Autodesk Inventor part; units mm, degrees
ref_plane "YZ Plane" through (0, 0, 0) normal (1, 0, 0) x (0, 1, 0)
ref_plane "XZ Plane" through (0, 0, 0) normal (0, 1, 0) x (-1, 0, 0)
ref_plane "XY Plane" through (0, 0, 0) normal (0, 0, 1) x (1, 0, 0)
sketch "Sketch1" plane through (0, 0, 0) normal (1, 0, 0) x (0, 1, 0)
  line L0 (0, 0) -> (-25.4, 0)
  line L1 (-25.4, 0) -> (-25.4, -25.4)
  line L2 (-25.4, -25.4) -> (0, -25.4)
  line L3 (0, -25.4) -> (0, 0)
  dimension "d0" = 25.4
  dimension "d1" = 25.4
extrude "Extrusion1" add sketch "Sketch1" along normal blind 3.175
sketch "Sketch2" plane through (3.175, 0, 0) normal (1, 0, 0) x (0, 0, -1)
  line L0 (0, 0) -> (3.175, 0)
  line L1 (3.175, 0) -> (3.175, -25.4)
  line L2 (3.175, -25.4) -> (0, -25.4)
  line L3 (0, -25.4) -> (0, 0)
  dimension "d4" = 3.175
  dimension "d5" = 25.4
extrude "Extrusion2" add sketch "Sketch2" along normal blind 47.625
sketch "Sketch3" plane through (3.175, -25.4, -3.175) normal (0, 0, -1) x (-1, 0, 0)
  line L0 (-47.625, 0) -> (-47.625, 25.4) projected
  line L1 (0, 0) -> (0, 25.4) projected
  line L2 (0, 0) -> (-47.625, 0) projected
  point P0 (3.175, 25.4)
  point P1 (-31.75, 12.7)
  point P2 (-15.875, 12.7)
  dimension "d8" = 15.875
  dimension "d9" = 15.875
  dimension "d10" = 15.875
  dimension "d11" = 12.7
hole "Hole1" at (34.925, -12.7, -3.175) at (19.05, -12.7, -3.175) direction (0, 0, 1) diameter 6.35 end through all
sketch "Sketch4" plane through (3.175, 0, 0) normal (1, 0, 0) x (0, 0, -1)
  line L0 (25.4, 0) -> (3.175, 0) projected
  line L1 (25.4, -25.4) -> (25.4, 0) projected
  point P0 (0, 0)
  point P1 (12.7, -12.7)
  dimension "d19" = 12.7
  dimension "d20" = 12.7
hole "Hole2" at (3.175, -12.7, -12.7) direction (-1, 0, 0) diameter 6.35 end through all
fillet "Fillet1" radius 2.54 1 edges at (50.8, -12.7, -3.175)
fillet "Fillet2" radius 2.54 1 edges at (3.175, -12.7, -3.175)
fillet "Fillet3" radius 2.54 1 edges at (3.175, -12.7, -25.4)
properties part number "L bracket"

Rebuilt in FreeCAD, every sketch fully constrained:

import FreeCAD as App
import Part
import Sketcher
Q = App.Units.Quantity


def edges_at(feature, points):
    """Names of the edges that pass closest to the given points."""
    edges = feature.Shape.Edges
    near = lambda p: min(range(len(edges)), key=lambda i: edges[i].distToShape(Part.Vertex(*p))[0])
    return sorted({f"Edge{near(p) + 1}" for p in points})

doc = App.newDocument("Part")
body = doc.addObject("PartDesign::Body", "Body")

sketch1 = body.newObject("Sketcher::SketchObject", "Sketch")
sketch1.AttachmentSupport = (doc.getObject("YZ_Plane"), [""])
sketch1.MapMode = "FlatFace"
sketch1.addGeometry([
    Part.LineSegment(App.Vector(0, -25, 0), App.Vector(0, 0, 0)),
    Part.LineSegment(App.Vector(0, 0, 0), App.Vector(-25, 0, 0)),
    Part.LineSegment(App.Vector(-25, 0, 0), App.Vector(-25, -25, 0)),
    Part.LineSegment(App.Vector(-25, -25, 0), App.Vector(0, -25, 0)),
], False)
sketch1.addConstraint([
    Sketcher.Constraint("Coincident", 0, 2, 1, 1),
    Sketcher.Constraint("Coincident", 1, 2, 2, 1),
    Sketcher.Constraint("Coincident", 2, 2, 3, 1),
    Sketcher.Constraint("Coincident", 3, 2, 0, 1),
    Sketcher.Constraint("Vertical", 0),
    Sketcher.Constraint("Horizontal", 1),
    Sketcher.Constraint("Vertical", 2),
    Sketcher.Constraint("Horizontal", 3),
    Sketcher.Constraint("Coincident", 0, 2, -1, 1),
    Sketcher.Constraint("Equal", 3, 0),
    Sketcher.Constraint("DistanceX", 1, 2, 1, 1, Q("1 in")),
])
pad1 = body.newObject("PartDesign::Pad", "Pad")
pad1.Profile = sketch1
pad1.Length = Q("0.125 in")

sketch2 = body.newObject("Sketcher::SketchObject", "Sketch001")
sketch2.AttachmentSupport = (doc.getObject("YZ_Plane"), [""])
sketch2.MapMode = "FlatFace"
sketch2.AttachmentOffset = App.Placement(App.Vector(0, 0, 0.125 * 25.4), App.Rotation())
sketch2.addGeometry([
    Part.LineSegment(App.Vector(0, -3.2, 0), App.Vector(0, 0, 0)),
    Part.LineSegment(App.Vector(0, 0, 0), App.Vector(-25.4, 0, 0)),
    Part.LineSegment(App.Vector(-25.4, 0, 0), App.Vector(-25.4, -3.2, 0)),
    Part.LineSegment(App.Vector(-25.4, -3.2, 0), App.Vector(0, -3.2, 0)),
], False)
sketch2.addConstraint([
    Sketcher.Constraint("Coincident", 0, 2, 1, 1),
    Sketcher.Constraint("Coincident", 1, 2, 2, 1),
    Sketcher.Constraint("Coincident", 2, 2, 3, 1),
    Sketcher.Constraint("Coincident", 3, 2, 0, 1),
    Sketcher.Constraint("Vertical", 0),
    Sketcher.Constraint("Horizontal", 1),
    Sketcher.Constraint("Vertical", 2),
    Sketcher.Constraint("Horizontal", 3),
    Sketcher.Constraint("Coincident", 0, 2, -1, 1),
    Sketcher.Constraint("DistanceX", 1, 2, 1, 1, Q("1 in")),
    Sketcher.Constraint("DistanceY", 0, 1, 0, 2, Q("0.125 in")),
])
pad2 = body.newObject("PartDesign::Pad", "Pad001")
pad2.Profile = sketch2
pad2.Length = Q("1.875 in")

sketch3 = body.newObject("Sketcher::SketchObject", "Sketch002")
sketch3.AttachmentSupport = (doc.getObject("XY_Plane"), [""])
sketch3.MapMode = "FlatFace"
sketch3.AttachmentOffset = App.Placement(App.Vector(0, 0, -0.125 * 25.4), App.Rotation())
sketch3.addGeometry([
    Part.Circle(App.Vector(34.9, -12.7, 0), App.Vector(0, 0, 1), 3.2),
    Part.Circle(App.Vector(19.1, -12.7, 0), App.Vector(0, 0, 1), 3.2),
], False)
sketch3.addConstraint([
    Sketcher.Constraint("Equal", 0, 1),
    Sketcher.Constraint("Horizontal", 0, 3, 1, 3),
    Sketcher.Constraint("Diameter", 0, Q("0.25 in")),
    Sketcher.Constraint("DistanceY", 0, 3, -1, 1, Q("0.5 in")),
    Sketcher.Constraint("DistanceX", -1, 1, 1, 3, Q("0.75 in")),
    Sketcher.Constraint("DistanceX", -1, 1, 0, 3, Q("1.375 in")),
])
doc.recompute()
hole = body.newObject("PartDesign::Hole", "Hole")
hole.Profile = sketch3
hole.ThreadType = "None"
hole.Diameter = Q("0.25 in")
hole.DepthType = "ThroughAll"
hole.Reversed = True

sketch4 = body.newObject("Sketcher::SketchObject", "Sketch003")
sketch4.AttachmentSupport = (doc.getObject("YZ_Plane"), [""])
sketch4.MapMode = "FlatFace"
sketch4.AttachmentOffset = App.Placement(App.Vector(0, 0, 0.125 * 25.4), App.Rotation())
sketch4.addGeometry(Part.Circle(App.Vector(-12.7, -12.7, 0), App.Vector(0, 0, 1), 3.2), False)
sketch4.addConstraint([
    Sketcher.Constraint("Diameter", 0, Q("0.25 in")),
    Sketcher.Constraint("DistanceX", 0, 3, -1, 1, Q("0.5 in")),
    Sketcher.Constraint("DistanceY", 0, 3, -1, 1, Q("0.5 in")),
])
doc.recompute()
hole2 = body.newObject("PartDesign::Hole", "Hole001")
hole2.Profile = sketch4
hole2.ThreadType = "None"
hole2.Diameter = Q("0.25 in")
hole2.DepthType = "ThroughAll"
doc.recompute()

fillet = body.newObject("PartDesign::Fillet", "Fillet")
fillet.Base = (hole2, edges_at(hole2, [(50.8, -12.7, -3.175)]))
fillet.Radius = Q("0.1 in")
doc.recompute()

fillet2 = body.newObject("PartDesign::Fillet", "Fillet001")
fillet2.Base = (fillet, edges_at(fillet, [(3.175, -12.7, -3.175)]))
fillet2.Radius = Q("0.1 in")
doc.recompute()

fillet3 = body.newObject("PartDesign::Fillet", "Fillet002")
fillet3.Base = (fillet2, edges_at(fillet2, [(3.175, -12.7, -25.4)]))
fillet3.Radius = Q("0.1 in")

doc.recompute()
